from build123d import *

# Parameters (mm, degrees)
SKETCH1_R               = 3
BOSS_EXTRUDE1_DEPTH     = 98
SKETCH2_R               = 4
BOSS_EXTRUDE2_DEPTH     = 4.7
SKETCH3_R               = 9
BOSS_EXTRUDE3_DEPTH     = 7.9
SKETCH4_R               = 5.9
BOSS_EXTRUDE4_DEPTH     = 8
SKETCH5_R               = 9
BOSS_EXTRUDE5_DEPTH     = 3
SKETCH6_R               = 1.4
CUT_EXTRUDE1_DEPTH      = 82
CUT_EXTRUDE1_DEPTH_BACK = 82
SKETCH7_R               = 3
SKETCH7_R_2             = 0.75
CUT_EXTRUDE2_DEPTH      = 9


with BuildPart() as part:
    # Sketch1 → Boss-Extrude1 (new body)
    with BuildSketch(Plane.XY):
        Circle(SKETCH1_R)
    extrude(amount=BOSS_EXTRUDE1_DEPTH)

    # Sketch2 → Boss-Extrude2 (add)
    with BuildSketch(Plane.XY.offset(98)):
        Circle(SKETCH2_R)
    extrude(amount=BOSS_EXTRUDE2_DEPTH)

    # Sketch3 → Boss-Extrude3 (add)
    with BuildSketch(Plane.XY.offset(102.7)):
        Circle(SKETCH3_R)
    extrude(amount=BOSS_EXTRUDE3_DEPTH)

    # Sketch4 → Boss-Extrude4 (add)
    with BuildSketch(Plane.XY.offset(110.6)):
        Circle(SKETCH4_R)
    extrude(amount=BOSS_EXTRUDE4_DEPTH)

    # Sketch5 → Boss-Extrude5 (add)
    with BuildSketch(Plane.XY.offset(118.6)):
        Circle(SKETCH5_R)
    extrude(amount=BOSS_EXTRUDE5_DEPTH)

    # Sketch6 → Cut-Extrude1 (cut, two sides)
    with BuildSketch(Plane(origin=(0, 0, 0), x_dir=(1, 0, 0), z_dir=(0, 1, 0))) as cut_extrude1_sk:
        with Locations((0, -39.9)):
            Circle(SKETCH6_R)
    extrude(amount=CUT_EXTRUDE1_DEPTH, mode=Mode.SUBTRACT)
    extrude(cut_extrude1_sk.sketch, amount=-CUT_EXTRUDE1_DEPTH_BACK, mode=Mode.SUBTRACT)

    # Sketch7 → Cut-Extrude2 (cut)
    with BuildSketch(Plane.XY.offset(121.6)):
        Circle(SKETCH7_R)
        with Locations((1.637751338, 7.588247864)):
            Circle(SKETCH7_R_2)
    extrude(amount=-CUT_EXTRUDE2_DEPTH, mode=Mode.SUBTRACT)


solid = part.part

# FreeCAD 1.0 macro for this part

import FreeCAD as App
import Part
import Sketcher

V = App.Vector
Q = App.Units.Quantity

doc = App.newDocument("Part")
body = doc.addObject("PartDesign::Body", "Body")

sketch1 = body.newObject("Sketcher::SketchObject", "Sketch")
sketch1.AttachmentSupport = (doc.getObject("XY_Plane"), [""])
sketch1.MapMode = "FlatFace"
sketch1.addGeometry(Part.Circle(V(0, 0, 0), V(0, 0, 1), 3), False)
sketch1.addConstraint([
    Sketcher.Constraint("Coincident", 0, 3, -1, 1),
    Sketcher.Constraint("Diameter", 0, Q("6 mm")),
])
pad1 = body.newObject("PartDesign::Pad", "Pad")
pad1.Profile = sketch1
pad1.Length = 98

sketch2 = body.newObject("Sketcher::SketchObject", "Sketch001")
sketch2.AttachmentSupport = (doc.getObject("XY_Plane"), [""])
sketch2.MapMode = "FlatFace"
sketch2.AttachmentOffset = App.Placement(V(0, 0, 98), App.Rotation())
sketch2.addGeometry(Part.Circle(V(0, 0, 0), V(0, 0, 1), 4), False)
sketch2.addConstraint([
    Sketcher.Constraint("Coincident", 0, 3, -1, 1),
    Sketcher.Constraint("Diameter", 0, Q("8 mm")),
])
pad2 = body.newObject("PartDesign::Pad", "Pad001")
pad2.Profile = sketch2
pad2.Length = 4.7

sketch3 = body.newObject("Sketcher::SketchObject", "Sketch002")
sketch3.AttachmentSupport = (doc.getObject("XY_Plane"), [""])
sketch3.MapMode = "FlatFace"
sketch3.AttachmentOffset = App.Placement(V(0, 0, 102.7), App.Rotation())
sketch3.addGeometry(Part.Circle(V(0, 0, 0), V(0, 0, 1), 9), False)
sketch3.addConstraint([
    Sketcher.Constraint("Coincident", 0, 3, -1, 1),
    Sketcher.Constraint("Diameter", 0, Q("18 mm")),
])
pad3 = body.newObject("PartDesign::Pad", "Pad002")
pad3.Profile = sketch3
pad3.Length = 7.9

sketch4 = body.newObject("Sketcher::SketchObject", "Sketch003")
sketch4.AttachmentSupport = (doc.getObject("XY_Plane"), [""])
sketch4.MapMode = "FlatFace"
sketch4.AttachmentOffset = App.Placement(V(0, 0, 110.6), App.Rotation())
sketch4.addGeometry(Part.Circle(V(0, 0, 0), V(0, 0, 1), 6), False)
sketch4.addConstraint([
    Sketcher.Constraint("Coincident", 0, 3, -1, 1),
    Sketcher.Constraint("Diameter", 0, Q("11.8 mm")),
])
pad4 = body.newObject("PartDesign::Pad", "Pad003")
pad4.Profile = sketch4
pad4.Length = 8

sketch5 = body.newObject("Sketcher::SketchObject", "Sketch004")
sketch5.AttachmentSupport = (doc.getObject("XY_Plane"), [""])
sketch5.MapMode = "FlatFace"
sketch5.AttachmentOffset = App.Placement(V(0, 0, 118.6), App.Rotation())
sketch5.addGeometry(Part.Circle(V(0, 0, 0), V(0, 0, 1), 9), False)
sketch5.addConstraint([
    Sketcher.Constraint("Coincident", 0, 3, -1, 1),
    Sketcher.Constraint("Diameter", 0, Q("18 mm")),
])
pad5 = body.newObject("PartDesign::Pad", "Pad004")
pad5.Profile = sketch5
pad5.Length = 3

sketch6 = body.newObject("Sketcher::SketchObject", "Sketch005")
sketch6.AttachmentSupport = (doc.getObject("XZ_Plane"), [""])
sketch6.MapMode = "FlatFace"
sketch6.addGeometry(Part.Circle(V(0, 39.9, 0), V(0, 0, 1), 1.4), False)
sketch6.addConstraint([
    Sketcher.Constraint("PointOnObject", 0, 3, -2),
    Sketcher.Constraint("Diameter", 0, Q("2.8 mm")),
    Sketcher.Constraint("DistanceY", -1, 1, 0, 3, Q("39.9 mm")),
])
pocket1 = body.newObject("PartDesign::Pocket", "Pocket")
pocket1.Profile = sketch6
pocket1.Type = "ThroughAll"
pocket1.Midplane = True

sketch7 = body.newObject("Sketcher::SketchObject", "Sketch006")
sketch7.AttachmentSupport = (doc.getObject("XY_Plane"), [""])
sketch7.MapMode = "FlatFace"
sketch7.AttachmentOffset = App.Placement(V(0, 0, 121.6), App.Rotation())
sketch7.addGeometry([
    Part.Circle(V(0, 0, 0), V(0, 0, 1), 3),
    Part.Circle(V(1.6, 7.6, 0), V(0, 0, 1), 0.8),
], False)
sketch7.addConstraint([
    Sketcher.Constraint("Coincident", 0, 3, -1, 1),
    Sketcher.Constraint("Diameter", 0, Q("6 mm")),
    Sketcher.Constraint("Diameter", 1, Q("1.5 mm")),
    Sketcher.Constraint("DistanceX", -1, 1, 1, 3, Q("1.637751 mm")),
    Sketcher.Constraint("DistanceY", -1, 1, 1, 3, Q("7.588248 mm")),
])
pocket2 = body.newObject("PartDesign::Pocket", "Pocket001")
pocket2.Profile = sketch7
pocket2.Length = 9

doc.recompute()
